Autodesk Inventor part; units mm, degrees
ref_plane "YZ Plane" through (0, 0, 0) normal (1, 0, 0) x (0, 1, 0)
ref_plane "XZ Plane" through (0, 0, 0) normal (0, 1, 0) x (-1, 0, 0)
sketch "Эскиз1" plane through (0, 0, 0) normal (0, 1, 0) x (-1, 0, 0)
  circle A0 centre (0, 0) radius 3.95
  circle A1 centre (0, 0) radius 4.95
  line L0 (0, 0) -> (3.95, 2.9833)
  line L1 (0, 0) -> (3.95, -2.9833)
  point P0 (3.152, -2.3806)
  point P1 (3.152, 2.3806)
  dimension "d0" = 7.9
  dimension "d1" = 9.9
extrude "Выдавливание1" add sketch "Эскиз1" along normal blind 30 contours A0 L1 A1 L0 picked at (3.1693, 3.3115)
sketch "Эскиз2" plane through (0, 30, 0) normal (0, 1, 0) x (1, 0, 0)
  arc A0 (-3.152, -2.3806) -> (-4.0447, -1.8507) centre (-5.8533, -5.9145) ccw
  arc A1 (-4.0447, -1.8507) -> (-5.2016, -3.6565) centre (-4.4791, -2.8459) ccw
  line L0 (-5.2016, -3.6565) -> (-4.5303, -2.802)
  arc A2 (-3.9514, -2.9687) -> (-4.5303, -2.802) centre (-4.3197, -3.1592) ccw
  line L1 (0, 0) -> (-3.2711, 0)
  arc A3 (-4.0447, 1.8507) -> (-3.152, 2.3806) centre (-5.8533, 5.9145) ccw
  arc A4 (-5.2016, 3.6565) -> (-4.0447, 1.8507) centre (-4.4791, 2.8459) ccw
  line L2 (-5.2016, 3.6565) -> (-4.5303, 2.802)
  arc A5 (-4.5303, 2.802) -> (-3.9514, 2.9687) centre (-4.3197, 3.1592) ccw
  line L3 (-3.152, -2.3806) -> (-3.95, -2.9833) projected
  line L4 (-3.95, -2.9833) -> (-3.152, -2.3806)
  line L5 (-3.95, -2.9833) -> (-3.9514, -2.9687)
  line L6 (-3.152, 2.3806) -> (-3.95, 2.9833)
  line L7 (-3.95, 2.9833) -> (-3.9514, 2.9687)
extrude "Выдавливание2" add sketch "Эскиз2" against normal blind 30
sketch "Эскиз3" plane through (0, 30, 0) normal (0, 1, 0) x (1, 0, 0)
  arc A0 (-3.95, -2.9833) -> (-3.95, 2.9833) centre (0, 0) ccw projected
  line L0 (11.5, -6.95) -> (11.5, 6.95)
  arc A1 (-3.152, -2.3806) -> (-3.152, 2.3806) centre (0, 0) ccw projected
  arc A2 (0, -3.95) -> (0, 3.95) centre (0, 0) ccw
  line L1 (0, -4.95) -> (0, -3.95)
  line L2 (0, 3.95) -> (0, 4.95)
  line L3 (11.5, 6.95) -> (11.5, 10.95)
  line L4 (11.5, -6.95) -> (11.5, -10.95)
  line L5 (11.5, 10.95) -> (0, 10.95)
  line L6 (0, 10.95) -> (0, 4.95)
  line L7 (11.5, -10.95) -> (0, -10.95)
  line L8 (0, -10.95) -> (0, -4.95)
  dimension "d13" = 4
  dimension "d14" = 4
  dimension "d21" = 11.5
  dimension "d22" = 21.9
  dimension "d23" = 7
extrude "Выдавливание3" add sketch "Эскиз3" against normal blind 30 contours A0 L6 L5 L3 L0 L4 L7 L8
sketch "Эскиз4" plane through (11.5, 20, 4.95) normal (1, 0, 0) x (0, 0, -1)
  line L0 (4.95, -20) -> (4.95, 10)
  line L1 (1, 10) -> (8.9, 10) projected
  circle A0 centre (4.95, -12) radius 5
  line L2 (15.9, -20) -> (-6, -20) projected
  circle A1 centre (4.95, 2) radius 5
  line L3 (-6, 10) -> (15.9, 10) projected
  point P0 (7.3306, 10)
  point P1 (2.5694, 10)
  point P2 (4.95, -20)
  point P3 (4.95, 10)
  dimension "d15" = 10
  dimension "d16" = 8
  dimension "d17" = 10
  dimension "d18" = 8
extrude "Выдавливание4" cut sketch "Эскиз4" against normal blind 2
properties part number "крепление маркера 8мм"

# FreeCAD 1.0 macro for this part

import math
import FreeCAD as App
import Part
import Sketcher

V = App.Vector
Q = App.Units.Quantity

doc = App.newDocument("Part")
body = doc.addObject("PartDesign::Body", "Body")

sketch1 = doc.addObject("Sketcher::SketchObject", "Sketch")
body.addObject(sketch1)
sketch1.AttachmentSupport = (doc.XZ_Plane, [""])
sketch1.MapMode = "FlatFace"
sketch1.addGeometry(Part.ArcOfCircle(Part.Circle(V(0, 0, 0), V(0, 0, 1), 4), math.radians(-143), math.radians(143)), False)
sketch1.addGeometry(Part.LineSegment(V(-3.2, 2.4, 0), V(-4, 3, 0)), False)
sketch1.addGeometry(Part.ArcOfCircle(Part.Circle(V(0, 0, 0), V(0, 0, 1), 5), math.radians(-143), math.radians(143)), False)
sketch1.addGeometry(Part.LineSegment(V(-4, -3, 0), V(-3.2, -2.4, 0)), False)
sketch1.addConstraint(Sketcher.Constraint("Coincident", 0, 2, 1, 1))
sketch1.addConstraint(Sketcher.Constraint("Coincident", 1, 2, 2, 2))
sketch1.addConstraint(Sketcher.Constraint("Coincident", 2, 1, 3, 1))
sketch1.addConstraint(Sketcher.Constraint("Coincident", 3, 2, 0, 1))
sketch1.addConstraint(Sketcher.Constraint("Coincident", 0, 3, -1, 1))
sketch1.addConstraint(Sketcher.Constraint("Coincident", 2, 3, -1, 1))
sketch1.addConstraint(Sketcher.Constraint("Vertical", 1, 2, 2, 1))
sketch1.addConstraint(Sketcher.Constraint("Vertical", 0, 2, 3, 2))
sketch1.addConstraint(Sketcher.Constraint("Radius", 0, Q("3.95 mm")))
sketch1.addConstraint(Sketcher.Constraint("Radius", 2, Q("4.95 mm")))
sketch1.addConstraint(Sketcher.Constraint("DistanceX", 1, 2, -1, 1, Q("3.95 mm")))
sketch1.addConstraint(Sketcher.Constraint("DistanceX", 0, 2, -1, 1, Q("3.152 mm")))
pad1 = doc.addObject("PartDesign::Pad", "Pad")
body.addObject(pad1)
pad1.Profile = sketch1
pad1.Length = 30
pad1.Reversed = True

sketch2 = doc.addObject("Sketcher::SketchObject", "Sketch001")
body.addObject(sketch2)
sketch2.AttachmentSupport = (doc.XZ_Plane, [""])
sketch2.MapMode = "FlatFace"
sketch2.AttachmentOffset = App.Placement(V(0, 0, -30), App.Rotation())
sketch2.addGeometry(Part.LineSegment(V(-3.95, 2.983, 0), V(-3.152, 2.381, 0)), False)
sketch2.addGeometry(Part.ArcOfCircle(Part.Circle(V(-5.853, 5.915, 0), V(0, 0, 1), 4.448), math.radians(-66.01), math.radians(-52.61)), False)
sketch2.addGeometry(Part.ArcOfCircle(Part.Circle(V(-4.479, 2.846, 0), V(0, 0, 1), 1.086), math.radians(132), math.radians(294)), False)
sketch2.addGeometry(Part.LineSegment(V(-5.202, 3.656, 0), V(-4.53, 2.802, 0)), False)
sketch2.addGeometry(Part.ArcOfCircle(Part.Circle(V(-4.32, 3.159, 0), V(0, 0, 1), 0.415), math.radians(-121), math.radians(-27)), False)
sketch2.addGeometry(Part.LineSegment(V(-3.951, 2.969, 0), V(-3.95, 2.983, 0)), False)
sketch2.addGeometry(Part.ArcOfCircle(Part.Circle(V(-4.479, -2.846, 0), V(0, 0, 1), 1.086), math.radians(66), math.radians(228)), False)
sketch2.addGeometry(Part.ArcOfCircle(Part.Circle(V(-5.853, -5.915, 0), V(0, 0, 1), 4.448), math.radians(52.61), math.radians(66.01)), False)
sketch2.addGeometry(Part.LineSegment(V(-3.152, -2.381, 0), V(-3.95, -2.983, 0)), False)
sketch2.addGeometry(Part.LineSegment(V(-3.95, -2.983, 0), V(-3.951, -2.969, 0)), False)
sketch2.addGeometry(Part.ArcOfCircle(Part.Circle(V(-4.32, -3.159, 0), V(0, 0, 1), 0.415), math.radians(27), math.radians(121)), False)
sketch2.addGeometry(Part.LineSegment(V(-4.53, -2.802, 0), V(-5.202, -3.656, 0)), False)
sketch2.addConstraint(Sketcher.Constraint("Coincident", 0, 2, 1, 2))
sketch2.addConstraint(Sketcher.Constraint("Coincident", 1, 1, 2, 2))
sketch2.addConstraint(Sketcher.Constraint("Coincident", 2, 1, 3, 1))
sketch2.addConstraint(Sketcher.Constraint("Coincident", 3, 2, 4, 1))
sketch2.addConstraint(Sketcher.Constraint("Coincident", 4, 2, 5, 1))
sketch2.addConstraint(Sketcher.Constraint("Coincident", 5, 2, 0, 1))
sketch2.addConstraint(Sketcher.Constraint("Coincident", 6, 1, 7, 2))
sketch2.addConstraint(Sketcher.Constraint("Coincident", 7, 1, 8, 1))
sketch2.addConstraint(Sketcher.Constraint("Coincident", 8, 2, 9, 1))
sketch2.addConstraint(Sketcher.Constraint("Coincident", 9, 2, 10, 1))
sketch2.addConstraint(Sketcher.Constraint("Coincident", 10, 2, 11, 1))
sketch2.addConstraint(Sketcher.Constraint("Coincident", 11, 2, 6, 2))
sketch2.addConstraint(Sketcher.Constraint("Equal", 2, 6))
sketch2.addConstraint(Sketcher.Constraint("Equal", 1, 7))
sketch2.addConstraint(Sketcher.Constraint("Equal", 4, 10))
sketch2.addConstraint(Sketcher.Constraint("Symmetric", 2, 3, 6, 3, -1))
sketch2.addConstraint(Sketcher.Constraint("Symmetric", 1, 3, 7, 3, -1))
sketch2.addConstraint(Sketcher.Constraint("Symmetric", 4, 3, 10, 3, -1))
sketch2.addConstraint(Sketcher.Constraint("Symmetric", 5, 2, 8, 2, -1))
sketch2.addConstraint(Sketcher.Constraint("Vertical", 0, 2, 7, 1))
sketch2.addConstraint(Sketcher.Constraint("Vertical", 4, 2, 9, 2))
sketch2.addConstraint(Sketcher.Constraint("Vertical", 3, 2, 10, 2))
sketch2.addConstraint(Sketcher.Constraint("Vertical", 2, 1, 11, 2))
sketch2.addConstraint(Sketcher.Constraint("Distance", 0, Q("1 mm")))
sketch2.addConstraint(Sketcher.Constraint("Radius", 1, Q("4.448 mm")))
sketch2.addConstraint(Sketcher.Constraint("Radius", 2, Q("1.0859 mm")))
sketch2.addConstraint(Sketcher.Constraint("Radius", 4, Q("0.4147 mm")))
sketch2.addConstraint(Sketcher.Constraint("DistanceX", 5, 2, -1, 1, Q("3.95 mm")))
sketch2.addConstraint(Sketcher.Constraint("DistanceY", 1, 1, 0, 2, Q("0.53 mm")))
sketch2.addConstraint(Sketcher.Constraint("DistanceX", 2, 3, -1, 1, Q("4.479 mm")))
sketch2.addConstraint(Sketcher.Constraint("DistanceY", -1, 1, 2, 3, Q("2.846 mm")))
sketch2.addConstraint(Sketcher.Constraint("DistanceX", 0, 2, -1, 1, Q("3.152 mm")))
sketch2.addConstraint(Sketcher.Constraint("DistanceY", -1, 1, 3, 2, Q("2.802 mm")))
sketch2.addConstraint(Sketcher.Constraint("DistanceY", 6, 3, 4, 3, Q("6.005 mm")))
sketch2.addConstraint(Sketcher.Constraint("DistanceY", 7, 3, 1, 3, Q("11.829 mm")))
sketch2.addConstraint(Sketcher.Constraint("DistanceX", 4, 3, 1, 1, Q("0.275 mm")))
sketch2.addConstraint(Sketcher.Constraint("DistanceX", 2, 1, 4, 3, Q("0.882 mm")))
sketch2.addConstraint(Sketcher.Constraint("DistanceX", 3, 2, 4, 2, Q("0.579 mm")))
pad2 = doc.addObject("PartDesign::Pad", "Pad001")
body.addObject(pad2)
pad2.Profile = sketch2
pad2.Length = 30

sketch3 = doc.addObject("Sketcher::SketchObject", "Sketch002")
body.addObject(sketch3)
sketch3.AttachmentSupport = (doc.XZ_Plane, [""])
sketch3.MapMode = "FlatFace"
sketch3.AttachmentOffset = App.Placement(V(0, 0, -30), App.Rotation())
sketch3.addGeometry(Part.ArcOfCircle(Part.Circle(V(0, 0, 0), V(0, 0, 1), 5), math.radians(-90), math.radians(90)), False)
sketch3.addGeometry(Part.LineSegment(V(0, 5, 0), V(0, 10.9, 0)), False)
sketch3.addGeometry(Part.LineSegment(V(0, 10.9, 0), V(11.5, 10.9, 0)), False)
sketch3.addGeometry(Part.LineSegment(V(11.5, 10.9, 0), V(11.5, -10.9, 0)), False)
sketch3.addGeometry(Part.LineSegment(V(11.5, -10.9, 0), V(0, -10.9, 0)), False)
sketch3.addGeometry(Part.LineSegment(V(0, -10.9, 0), V(0, -5, 0)), False)
sketch3.addConstraint(Sketcher.Constraint("Coincident", 0, 2, 1, 1))
sketch3.addConstraint(Sketcher.Constraint("Coincident", 1, 2, 2, 1))
sketch3.addConstraint(Sketcher.Constraint("Coincident", 2, 2, 3, 1))
sketch3.addConstraint(Sketcher.Constraint("Coincident", 3, 2, 4, 1))
sketch3.addConstraint(Sketcher.Constraint("Coincident", 4, 2, 5, 1))
sketch3.addConstraint(Sketcher.Constraint("Coincident", 5, 2, 0, 1))
sketch3.addConstraint(Sketcher.Constraint("Vertical", 1))
sketch3.addConstraint(Sketcher.Constraint("Horizontal", 2))
sketch3.addConstraint(Sketcher.Constraint("Vertical", 3))
sketch3.addConstraint(Sketcher.Constraint("Horizontal", 4))
sketch3.addConstraint(Sketcher.Constraint("Vertical", 5))
sketch3.addConstraint(Sketcher.Constraint("Coincident", 0, 3, -1, 1))
sketch3.addConstraint(Sketcher.Constraint("Symmetric", 1, 2, 4, 2, -1, 1))
sketch3.addConstraint(Sketcher.Constraint("PointOnObject", 0, 2, -2))
sketch3.addConstraint(Sketcher.Constraint("DistanceX", 2, 1, 2, 2, Q("11.5 mm")))
sketch3.addConstraint(Sketcher.Constraint("DistanceY", 3, 2, 3, 1, Q("21.9 mm")))
sketch3.addConstraint(Sketcher.Constraint("DistanceY", 1, 1, 1, 2, Q("6 mm")))
pad3 = doc.addObject("PartDesign::Pad", "Pad002")
body.addObject(pad3)
pad3.Profile = sketch3
pad3.Length = 30

sketch4 = doc.addObject("Sketcher::SketchObject", "Sketch003")
body.addObject(sketch4)
sketch4.AttachmentSupport = (doc.YZ_Plane, [""])
sketch4.MapMode = "FlatFace"
sketch4.AttachmentOffset = App.Placement(V(0, 0, 11.5), App.Rotation())
sketch4.addGeometry(Part.Circle(V(8, 0, 0), V(0, 0, 1), 5), False)
sketch4.addGeometry(Part.Circle(V(22, 0, 0), V(0, 0, 1), 5), False)
sketch4.addConstraint(Sketcher.Constraint("Equal", 0, 1))
sketch4.addConstraint(Sketcher.Constraint("PointOnObject", 0, 3, -1))
sketch4.addConstraint(Sketcher.Constraint("PointOnObject", 1, 3, -1))
sketch4.addConstraint(Sketcher.Constraint("Diameter", 0, Q("10 mm")))
sketch4.addConstraint(Sketcher.Constraint("DistanceX", -1, 1, 0, 3, Q("8 mm")))
sketch4.addConstraint(Sketcher.Constraint("DistanceX", -1, 1, 1, 3, Q("22 mm")))
pocket1 = doc.addObject("PartDesign::Pocket", "Pocket")
body.addObject(pocket1)
pocket1.Profile = sketch4
pocket1.Length = 2

doc.recompute()
